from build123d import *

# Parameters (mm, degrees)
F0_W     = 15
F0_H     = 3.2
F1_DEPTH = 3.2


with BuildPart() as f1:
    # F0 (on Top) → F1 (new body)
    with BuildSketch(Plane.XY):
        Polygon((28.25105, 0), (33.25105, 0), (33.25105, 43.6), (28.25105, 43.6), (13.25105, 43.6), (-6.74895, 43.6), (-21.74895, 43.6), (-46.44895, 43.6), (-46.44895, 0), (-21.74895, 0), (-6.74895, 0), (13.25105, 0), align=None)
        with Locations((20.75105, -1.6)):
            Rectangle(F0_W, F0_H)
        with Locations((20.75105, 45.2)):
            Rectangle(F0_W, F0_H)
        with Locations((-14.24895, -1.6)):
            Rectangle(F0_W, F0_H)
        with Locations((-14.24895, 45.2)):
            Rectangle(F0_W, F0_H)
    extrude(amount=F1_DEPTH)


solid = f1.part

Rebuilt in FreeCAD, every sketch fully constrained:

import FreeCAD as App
import Part
import Sketcher


def add_polygon(sketch, points):
    """Adds a closed chain of lines whose ends are joined by coincident constraints."""
    first, n = sketch.GeometryCount, len(points)
    for a, b in zip(points, points[1:] + points[:1]):
        sketch.addGeometry(Part.LineSegment(App.Vector(*a, 0), App.Vector(*b, 0)), False)
    for i in range(n):
        sketch.addConstraint(Sketcher.Constraint("Coincident", first + i, 2, first + (i + 1) % n, 1))

doc = App.newDocument("Part")
params = doc.addObject("Spreadsheet::Sheet", "Params")
for row, (alias, value) in enumerate([
    ("sketch1_width", "5 mm"),
    ("sketch1_width2", "15 mm"),
    ("sketch1_width3", "20 mm"),
    ("sketch1_width4", "24.7 mm"),
    ("sketch1_height", "43.6 mm"),
    ("pad1_length", "3.2 mm"),
], start=1):
    params.set(f"A{row}", alias)
    params.set(f"B{row}", "=" + value)
    params.setAlias(f"B{row}", alias)

body = doc.addObject("PartDesign::Body", "Body")

# Sketch on XY plane
sketch1 = doc.addObject("Sketcher::SketchObject", "Sketch")
body.addObject(sketch1)
sketch1.AttachmentSupport = (doc.XY_Plane, [""])
sketch1.MapMode = "FlatFace"
add_polygon(sketch1, [(33.3, 0), (33.3, 43.6), (28.3, 43.6), (28.3, 46.8), (13.3, 46.8), (13.3, 43.6), (-6.7, 43.6), (-6.7, 46.8), (-21.7, 46.8), (-21.7, 43.6), (-46.4, 43.6), (-46.4, 0), (-21.7, 0), (-21.7, -3.2), (-6.7, -3.2), (-6.7, 0), (13.3, 0), (13.3, -3.2), (28.3, -3.2), (28.3, 0)])  # lines 0-19
sketch1.addConstraint([
    Sketcher.Constraint("Vertical", 0),
    Sketcher.Constraint("Horizontal", 1),
    Sketcher.Constraint("Vertical", 2),
    Sketcher.Constraint("Horizontal", 3),
    Sketcher.Constraint("Vertical", 4),
    Sketcher.Constraint("Horizontal", 5),
    Sketcher.Constraint("Vertical", 6),
    Sketcher.Constraint("Horizontal", 7),
    Sketcher.Constraint("Vertical", 8),
    Sketcher.Constraint("Horizontal", 9),
    Sketcher.Constraint("Vertical", 10),
    Sketcher.Constraint("Horizontal", 11),
    Sketcher.Constraint("Vertical", 12),
    Sketcher.Constraint("Horizontal", 13),
    Sketcher.Constraint("Vertical", 14),
    Sketcher.Constraint("Horizontal", 15),
    Sketcher.Constraint("Vertical", 16),
    Sketcher.Constraint("Horizontal", 17),
    Sketcher.Constraint("Vertical", 18),
    Sketcher.Constraint("Horizontal", 19),
    Sketcher.Constraint("PointOnObject", 10, 2, -1),
    Sketcher.Constraint("PointOnObject", 14, 2, -1),
    Sketcher.Constraint("PointOnObject", 18, 2, -1),
    Sketcher.Constraint("Horizontal", 1, 2, 4, 2),
    Sketcher.Constraint("Horizontal", 3, 2, 6, 2),
    Sketcher.Constraint("Horizontal", 5, 2, 8, 2),
    Sketcher.Constraint("Horizontal", 13, 2, 16, 2),
    Sketcher.Constraint("Vertical", 8, 2, 11, 2),
    Sketcher.Constraint("Vertical", 6, 2, 13, 2),
    Sketcher.Constraint("Vertical", 4, 2, 15, 2),
    Sketcher.Constraint("Vertical", 2, 2, 17, 2),
    Sketcher.Constraint("Equal", 3, 7),
    Sketcher.Constraint("Equal", 8, 12),
    Sketcher.Constraint("DistanceX", 1, 2, 1, 1, 5.0),
    Sketcher.Constraint("DistanceX", 3, 2, 3, 1, 15.0),
    Sketcher.Constraint("DistanceX", 5, 2, 5, 1, 20.0),
    Sketcher.Constraint("DistanceX", 9, 2, 9, 1, 24.7),
    Sketcher.Constraint("DistanceY", 0, 1, 0, 2, 43.6),
    Sketcher.Constraint("DistanceY", 2, 1, 2, 2, 3.2),
    Sketcher.Constraint("DistanceX", -1, 1, 0, 2, 33.25105),
])
sketch1.setExpression("Constraints[53]", "Params.sketch1_width")
sketch1.setExpression("Constraints[54]", "Params.sketch1_width2")
sketch1.setExpression("Constraints[55]", "Params.sketch1_width3")
sketch1.setExpression("Constraints[56]", "Params.sketch1_width4")
sketch1.setExpression("Constraints[57]", "Params.sketch1_height")
pad1 = doc.addObject("PartDesign::Pad", "Pad")
body.addObject(pad1)
pad1.Profile = sketch1
pad1.setExpression("Length", "Params.pad1_length")

doc.recompute()
